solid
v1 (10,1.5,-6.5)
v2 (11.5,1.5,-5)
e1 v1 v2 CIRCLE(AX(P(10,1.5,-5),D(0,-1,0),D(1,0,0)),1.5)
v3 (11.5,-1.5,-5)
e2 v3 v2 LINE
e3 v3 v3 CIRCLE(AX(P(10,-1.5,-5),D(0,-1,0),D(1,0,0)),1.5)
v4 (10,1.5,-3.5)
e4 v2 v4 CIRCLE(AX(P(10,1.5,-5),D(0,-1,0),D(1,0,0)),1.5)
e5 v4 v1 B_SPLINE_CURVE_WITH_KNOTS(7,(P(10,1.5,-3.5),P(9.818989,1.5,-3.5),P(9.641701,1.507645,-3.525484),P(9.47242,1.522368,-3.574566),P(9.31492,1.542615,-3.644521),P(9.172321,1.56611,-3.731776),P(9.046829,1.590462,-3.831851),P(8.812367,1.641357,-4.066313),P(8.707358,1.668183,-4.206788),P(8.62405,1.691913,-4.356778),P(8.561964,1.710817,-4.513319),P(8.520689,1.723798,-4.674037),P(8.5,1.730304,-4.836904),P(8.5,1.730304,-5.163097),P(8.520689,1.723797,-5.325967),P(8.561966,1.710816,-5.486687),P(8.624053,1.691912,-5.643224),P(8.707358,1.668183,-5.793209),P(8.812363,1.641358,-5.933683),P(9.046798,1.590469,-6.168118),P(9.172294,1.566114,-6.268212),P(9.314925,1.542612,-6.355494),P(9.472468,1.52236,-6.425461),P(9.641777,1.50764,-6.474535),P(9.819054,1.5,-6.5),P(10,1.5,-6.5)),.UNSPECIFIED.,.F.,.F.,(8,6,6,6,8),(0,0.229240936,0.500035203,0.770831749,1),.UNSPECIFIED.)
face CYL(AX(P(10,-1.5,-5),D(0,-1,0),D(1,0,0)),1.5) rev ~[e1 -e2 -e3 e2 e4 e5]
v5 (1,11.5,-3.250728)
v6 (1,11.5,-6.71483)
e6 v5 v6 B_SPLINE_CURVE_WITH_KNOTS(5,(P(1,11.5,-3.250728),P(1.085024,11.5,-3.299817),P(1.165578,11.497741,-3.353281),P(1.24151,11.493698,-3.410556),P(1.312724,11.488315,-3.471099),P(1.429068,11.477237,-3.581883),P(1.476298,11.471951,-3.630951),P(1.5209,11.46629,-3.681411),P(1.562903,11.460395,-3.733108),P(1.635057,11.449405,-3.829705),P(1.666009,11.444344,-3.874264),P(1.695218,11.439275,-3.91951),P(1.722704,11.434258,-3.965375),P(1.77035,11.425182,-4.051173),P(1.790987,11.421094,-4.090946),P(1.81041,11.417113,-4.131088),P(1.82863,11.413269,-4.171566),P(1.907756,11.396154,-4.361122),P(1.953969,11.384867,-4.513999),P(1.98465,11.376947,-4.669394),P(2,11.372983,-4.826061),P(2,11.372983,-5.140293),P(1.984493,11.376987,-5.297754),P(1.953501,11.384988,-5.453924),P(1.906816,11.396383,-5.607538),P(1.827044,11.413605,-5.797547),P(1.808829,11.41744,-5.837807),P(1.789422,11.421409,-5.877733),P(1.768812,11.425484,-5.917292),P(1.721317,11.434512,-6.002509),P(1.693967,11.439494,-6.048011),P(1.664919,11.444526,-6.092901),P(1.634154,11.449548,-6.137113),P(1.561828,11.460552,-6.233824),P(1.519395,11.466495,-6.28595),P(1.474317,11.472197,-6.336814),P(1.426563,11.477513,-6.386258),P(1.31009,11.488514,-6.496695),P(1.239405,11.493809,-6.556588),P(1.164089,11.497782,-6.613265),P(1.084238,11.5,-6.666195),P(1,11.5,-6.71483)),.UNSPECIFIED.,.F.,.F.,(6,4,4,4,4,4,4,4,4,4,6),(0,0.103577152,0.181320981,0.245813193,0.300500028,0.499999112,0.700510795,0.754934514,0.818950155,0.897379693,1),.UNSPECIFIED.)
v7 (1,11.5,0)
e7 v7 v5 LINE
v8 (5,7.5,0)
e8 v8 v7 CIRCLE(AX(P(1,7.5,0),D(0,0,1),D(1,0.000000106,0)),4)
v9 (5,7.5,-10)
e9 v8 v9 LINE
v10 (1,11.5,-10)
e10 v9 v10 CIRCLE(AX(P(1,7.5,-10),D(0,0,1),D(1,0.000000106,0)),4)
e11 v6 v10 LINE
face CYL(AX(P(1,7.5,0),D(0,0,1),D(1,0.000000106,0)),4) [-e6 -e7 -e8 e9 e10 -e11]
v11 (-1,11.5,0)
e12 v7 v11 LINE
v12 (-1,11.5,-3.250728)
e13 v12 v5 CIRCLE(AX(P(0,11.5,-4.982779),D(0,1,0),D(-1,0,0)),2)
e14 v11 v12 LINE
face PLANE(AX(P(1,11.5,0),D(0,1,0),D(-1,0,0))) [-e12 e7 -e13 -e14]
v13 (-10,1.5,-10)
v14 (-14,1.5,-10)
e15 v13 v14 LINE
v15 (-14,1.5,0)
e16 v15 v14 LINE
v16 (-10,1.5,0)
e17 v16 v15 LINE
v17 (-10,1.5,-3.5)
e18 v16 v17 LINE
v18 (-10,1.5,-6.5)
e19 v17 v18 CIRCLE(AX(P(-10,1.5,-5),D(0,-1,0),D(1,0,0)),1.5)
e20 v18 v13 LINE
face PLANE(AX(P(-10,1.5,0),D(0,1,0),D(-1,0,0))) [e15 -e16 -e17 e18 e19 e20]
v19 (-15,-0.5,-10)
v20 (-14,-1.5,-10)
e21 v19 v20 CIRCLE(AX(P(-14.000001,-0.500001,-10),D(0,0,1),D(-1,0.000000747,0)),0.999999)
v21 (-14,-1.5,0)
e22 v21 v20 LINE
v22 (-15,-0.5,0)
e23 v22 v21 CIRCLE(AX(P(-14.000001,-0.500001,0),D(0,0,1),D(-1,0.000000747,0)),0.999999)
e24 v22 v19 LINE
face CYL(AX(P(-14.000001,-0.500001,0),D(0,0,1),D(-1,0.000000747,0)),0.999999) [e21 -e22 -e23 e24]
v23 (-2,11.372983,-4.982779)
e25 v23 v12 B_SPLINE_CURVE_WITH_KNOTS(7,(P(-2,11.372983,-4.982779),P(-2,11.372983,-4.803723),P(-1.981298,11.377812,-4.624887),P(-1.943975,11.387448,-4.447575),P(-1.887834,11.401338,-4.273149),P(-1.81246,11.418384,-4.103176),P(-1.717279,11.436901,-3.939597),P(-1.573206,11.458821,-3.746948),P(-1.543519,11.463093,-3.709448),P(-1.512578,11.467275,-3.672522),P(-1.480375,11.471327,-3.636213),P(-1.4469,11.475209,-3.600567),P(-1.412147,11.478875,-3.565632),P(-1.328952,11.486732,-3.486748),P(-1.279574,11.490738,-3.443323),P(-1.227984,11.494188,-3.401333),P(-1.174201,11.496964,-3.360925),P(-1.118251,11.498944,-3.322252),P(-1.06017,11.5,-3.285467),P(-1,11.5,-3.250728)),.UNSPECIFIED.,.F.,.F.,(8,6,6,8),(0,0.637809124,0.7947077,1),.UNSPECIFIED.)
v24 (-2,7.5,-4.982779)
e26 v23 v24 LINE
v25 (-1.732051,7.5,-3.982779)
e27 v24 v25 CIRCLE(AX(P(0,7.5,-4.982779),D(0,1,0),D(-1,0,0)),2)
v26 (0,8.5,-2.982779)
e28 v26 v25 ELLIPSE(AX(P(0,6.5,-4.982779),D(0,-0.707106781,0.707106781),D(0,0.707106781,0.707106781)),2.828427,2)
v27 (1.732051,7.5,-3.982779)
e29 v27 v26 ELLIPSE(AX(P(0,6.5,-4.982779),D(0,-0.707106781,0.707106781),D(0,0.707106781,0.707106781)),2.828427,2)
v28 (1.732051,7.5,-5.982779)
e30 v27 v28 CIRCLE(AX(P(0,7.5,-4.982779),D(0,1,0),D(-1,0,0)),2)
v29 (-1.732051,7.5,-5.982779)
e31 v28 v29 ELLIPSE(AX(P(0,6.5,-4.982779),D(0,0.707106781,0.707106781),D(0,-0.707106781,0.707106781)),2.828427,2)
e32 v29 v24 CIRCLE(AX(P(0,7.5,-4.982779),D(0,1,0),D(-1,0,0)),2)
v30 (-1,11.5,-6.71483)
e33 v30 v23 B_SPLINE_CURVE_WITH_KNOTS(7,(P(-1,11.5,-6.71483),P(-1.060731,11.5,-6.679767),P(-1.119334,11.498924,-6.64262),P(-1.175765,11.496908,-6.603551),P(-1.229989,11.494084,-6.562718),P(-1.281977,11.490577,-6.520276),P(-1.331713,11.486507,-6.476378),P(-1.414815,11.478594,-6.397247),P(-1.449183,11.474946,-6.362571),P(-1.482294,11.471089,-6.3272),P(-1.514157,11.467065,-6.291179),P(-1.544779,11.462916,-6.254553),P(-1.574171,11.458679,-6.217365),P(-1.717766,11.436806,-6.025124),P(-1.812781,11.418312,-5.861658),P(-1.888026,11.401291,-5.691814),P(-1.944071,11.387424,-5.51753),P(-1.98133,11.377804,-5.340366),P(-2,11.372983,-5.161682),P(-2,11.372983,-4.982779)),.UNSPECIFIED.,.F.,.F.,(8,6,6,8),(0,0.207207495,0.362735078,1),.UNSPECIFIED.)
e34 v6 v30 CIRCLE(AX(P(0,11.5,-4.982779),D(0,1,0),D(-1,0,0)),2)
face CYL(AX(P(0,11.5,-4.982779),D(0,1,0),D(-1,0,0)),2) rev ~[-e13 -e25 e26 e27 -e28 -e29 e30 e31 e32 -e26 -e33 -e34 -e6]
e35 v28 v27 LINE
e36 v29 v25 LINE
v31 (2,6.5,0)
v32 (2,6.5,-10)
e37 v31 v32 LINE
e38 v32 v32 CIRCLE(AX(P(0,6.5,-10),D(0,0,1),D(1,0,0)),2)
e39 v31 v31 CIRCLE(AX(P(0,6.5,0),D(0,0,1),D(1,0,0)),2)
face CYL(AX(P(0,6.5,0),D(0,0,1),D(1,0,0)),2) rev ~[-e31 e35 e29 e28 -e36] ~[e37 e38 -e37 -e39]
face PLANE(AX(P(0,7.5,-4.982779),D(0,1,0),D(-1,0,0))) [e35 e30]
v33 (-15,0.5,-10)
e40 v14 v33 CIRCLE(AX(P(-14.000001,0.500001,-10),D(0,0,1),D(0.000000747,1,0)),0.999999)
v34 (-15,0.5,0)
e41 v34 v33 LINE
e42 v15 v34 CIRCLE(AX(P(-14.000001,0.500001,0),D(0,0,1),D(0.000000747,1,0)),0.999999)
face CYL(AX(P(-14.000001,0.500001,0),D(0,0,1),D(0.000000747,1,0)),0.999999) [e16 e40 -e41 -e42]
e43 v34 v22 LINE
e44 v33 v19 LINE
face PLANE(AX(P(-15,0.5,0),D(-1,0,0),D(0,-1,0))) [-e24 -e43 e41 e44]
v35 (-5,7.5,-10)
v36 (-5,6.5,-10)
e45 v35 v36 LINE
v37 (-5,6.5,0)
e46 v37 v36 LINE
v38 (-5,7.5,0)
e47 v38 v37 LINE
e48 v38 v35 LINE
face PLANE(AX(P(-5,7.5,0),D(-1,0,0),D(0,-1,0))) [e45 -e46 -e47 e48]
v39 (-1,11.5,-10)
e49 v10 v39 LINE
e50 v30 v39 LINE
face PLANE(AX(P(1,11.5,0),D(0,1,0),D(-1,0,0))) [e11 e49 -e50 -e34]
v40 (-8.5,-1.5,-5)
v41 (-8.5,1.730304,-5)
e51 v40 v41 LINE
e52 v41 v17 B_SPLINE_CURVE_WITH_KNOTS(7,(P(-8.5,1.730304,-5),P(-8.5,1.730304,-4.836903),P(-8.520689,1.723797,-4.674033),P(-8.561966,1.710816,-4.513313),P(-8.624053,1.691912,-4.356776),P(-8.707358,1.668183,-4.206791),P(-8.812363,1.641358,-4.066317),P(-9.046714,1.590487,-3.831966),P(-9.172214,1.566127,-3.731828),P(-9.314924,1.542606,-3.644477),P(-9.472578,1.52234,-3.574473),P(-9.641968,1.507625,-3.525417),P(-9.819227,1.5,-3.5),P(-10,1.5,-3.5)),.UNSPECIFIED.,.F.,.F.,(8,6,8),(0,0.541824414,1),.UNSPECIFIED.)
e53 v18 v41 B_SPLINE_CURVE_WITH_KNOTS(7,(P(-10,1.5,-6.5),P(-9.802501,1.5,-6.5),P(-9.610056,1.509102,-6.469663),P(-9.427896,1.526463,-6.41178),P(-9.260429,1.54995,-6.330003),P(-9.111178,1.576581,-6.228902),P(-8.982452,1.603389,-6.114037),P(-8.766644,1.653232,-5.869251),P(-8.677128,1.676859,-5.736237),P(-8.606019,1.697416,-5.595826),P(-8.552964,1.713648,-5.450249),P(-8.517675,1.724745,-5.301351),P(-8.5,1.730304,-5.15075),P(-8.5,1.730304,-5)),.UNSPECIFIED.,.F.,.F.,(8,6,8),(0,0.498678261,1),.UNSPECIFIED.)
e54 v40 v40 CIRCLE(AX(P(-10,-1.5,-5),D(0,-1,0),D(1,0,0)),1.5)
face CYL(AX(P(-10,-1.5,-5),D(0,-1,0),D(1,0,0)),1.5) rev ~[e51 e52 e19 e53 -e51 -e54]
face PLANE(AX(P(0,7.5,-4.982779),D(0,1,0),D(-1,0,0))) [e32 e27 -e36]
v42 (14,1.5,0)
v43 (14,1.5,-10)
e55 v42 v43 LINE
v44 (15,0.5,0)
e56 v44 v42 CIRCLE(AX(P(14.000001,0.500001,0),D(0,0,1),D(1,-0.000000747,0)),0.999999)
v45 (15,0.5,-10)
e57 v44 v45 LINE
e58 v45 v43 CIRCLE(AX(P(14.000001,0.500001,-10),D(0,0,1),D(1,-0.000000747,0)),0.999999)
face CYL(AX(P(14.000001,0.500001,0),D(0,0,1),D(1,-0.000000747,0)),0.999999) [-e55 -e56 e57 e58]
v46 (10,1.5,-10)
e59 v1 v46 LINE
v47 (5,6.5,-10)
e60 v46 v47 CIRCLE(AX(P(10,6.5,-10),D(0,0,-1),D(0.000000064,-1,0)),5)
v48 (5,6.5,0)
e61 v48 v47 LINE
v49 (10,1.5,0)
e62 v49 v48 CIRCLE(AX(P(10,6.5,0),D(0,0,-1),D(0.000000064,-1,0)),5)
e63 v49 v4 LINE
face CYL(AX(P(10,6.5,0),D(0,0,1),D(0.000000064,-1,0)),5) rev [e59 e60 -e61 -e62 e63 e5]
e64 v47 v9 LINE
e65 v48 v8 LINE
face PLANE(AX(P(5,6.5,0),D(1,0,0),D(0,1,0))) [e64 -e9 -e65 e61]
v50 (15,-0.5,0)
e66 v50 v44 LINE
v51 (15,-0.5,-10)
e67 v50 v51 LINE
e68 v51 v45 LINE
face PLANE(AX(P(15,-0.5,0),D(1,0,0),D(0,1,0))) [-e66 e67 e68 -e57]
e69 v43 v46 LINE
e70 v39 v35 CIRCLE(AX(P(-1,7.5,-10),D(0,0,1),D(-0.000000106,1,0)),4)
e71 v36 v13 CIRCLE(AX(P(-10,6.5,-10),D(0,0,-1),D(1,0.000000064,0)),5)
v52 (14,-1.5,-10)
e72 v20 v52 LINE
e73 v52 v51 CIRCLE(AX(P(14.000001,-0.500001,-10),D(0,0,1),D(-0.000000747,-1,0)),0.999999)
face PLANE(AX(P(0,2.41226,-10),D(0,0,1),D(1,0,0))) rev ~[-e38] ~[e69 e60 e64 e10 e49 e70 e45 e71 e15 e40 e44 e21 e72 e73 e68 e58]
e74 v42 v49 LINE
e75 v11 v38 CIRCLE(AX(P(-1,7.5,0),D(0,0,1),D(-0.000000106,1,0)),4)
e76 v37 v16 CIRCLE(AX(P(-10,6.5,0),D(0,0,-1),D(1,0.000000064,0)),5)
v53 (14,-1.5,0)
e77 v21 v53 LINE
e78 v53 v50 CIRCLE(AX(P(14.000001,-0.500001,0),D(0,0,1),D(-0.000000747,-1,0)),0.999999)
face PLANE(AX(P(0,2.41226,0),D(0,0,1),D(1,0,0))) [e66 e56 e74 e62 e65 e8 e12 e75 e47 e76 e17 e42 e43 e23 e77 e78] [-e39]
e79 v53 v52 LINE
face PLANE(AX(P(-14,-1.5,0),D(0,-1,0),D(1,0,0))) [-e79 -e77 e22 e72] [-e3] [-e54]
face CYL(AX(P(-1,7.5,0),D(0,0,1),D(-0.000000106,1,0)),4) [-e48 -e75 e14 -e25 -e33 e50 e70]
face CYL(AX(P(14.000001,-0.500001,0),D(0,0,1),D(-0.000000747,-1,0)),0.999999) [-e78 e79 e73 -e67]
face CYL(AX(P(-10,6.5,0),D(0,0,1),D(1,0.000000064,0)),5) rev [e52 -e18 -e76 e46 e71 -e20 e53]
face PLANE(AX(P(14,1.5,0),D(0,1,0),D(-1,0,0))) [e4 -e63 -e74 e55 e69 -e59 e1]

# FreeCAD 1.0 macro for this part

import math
import FreeCAD as App
import Part
import Sketcher
from FreeCAD import Vector

doc = App.newDocument("Part")
body = doc.addObject("PartDesign::Body", "Body")

# Sketch on XY plane
sketch1 = body.newObject("Sketcher::SketchObject", "Sketch")
sketch1.AttachmentSupport = (doc.getObject("XY_Plane"), [""])
sketch1.MapMode = "FlatFace"
sketch1.addGeometry([
    Part.LineSegment(Vector(-14, -1.5, 0), Vector(14, -1.5, 0)),  # 0
    Part.ArcOfCircle(Part.Circle(Vector(14.000001, -0.500001, 0), Vector(0, 0, 1), 0.999999), math.radians(-90.000043), math.radians(0.000043)),  # 1
    Part.LineSegment(Vector(15, -0.5, 0), Vector(15, 0.5, 0)),  # 2
    Part.ArcOfCircle(Part.Circle(Vector(14.000001, 0.500001, 0), Vector(0, 0, 1), 0.999999), math.radians(-0.000043), math.radians(90.000043)),  # 3
    Part.LineSegment(Vector(14, 1.5, 0), Vector(10, 1.5, 0)),  # 4
    Part.ArcOfCircle(Part.Circle(Vector(10, 6.5, 0), Vector(0, 0, 1), 5), math.radians(179.999996), math.radians(270.000004)),  # 5
    Part.LineSegment(Vector(5, 6.5, 0), Vector(5, 7.5, 0)),  # 6
    Part.ArcOfCircle(Part.Circle(Vector(1, 7.5, 0), Vector(0, 0, 1), 4), math.radians(0.000006), math.radians(89.999994)),  # 7
    Part.LineSegment(Vector(1, 11.5, 0), Vector(-1, 11.5, 0)),  # 8
    Part.ArcOfCircle(Part.Circle(Vector(-1, 7.5, 0), Vector(0, 0, 1), 4), math.radians(90.000006), math.radians(179.999994)),  # 9
    Part.LineSegment(Vector(-5, 7.5, 0), Vector(-5, 6.5, 0)),  # 10
    Part.ArcOfCircle(Part.Circle(Vector(-10, 6.5, 0), Vector(0, 0, 1), 5), math.radians(-90.000004), math.radians(0.000004)),  # 11
    Part.LineSegment(Vector(-10, 1.5, 0), Vector(-14, 1.5, 0)),  # 12
    Part.ArcOfCircle(Part.Circle(Vector(-14.000001, 0.500001, 0), Vector(0, 0, 1), 0.999999), math.radians(89.999957), math.radians(180.000043)),  # 13
    Part.LineSegment(Vector(-15, 0.5, 0), Vector(-15, -0.5, 0)),  # 14
    Part.ArcOfCircle(Part.Circle(Vector(-14.000001, -0.500001, 0), Vector(0, 0, 1), 0.999999), math.radians(179.999957), math.radians(270.000043)),  # 15
    Part.Circle(Vector(0, 6.5, 0), Vector(0, 0, 1), 2),  # 16
], False)
sketch1.addConstraint([
    Sketcher.Constraint("Tangent", 0, 2, 1, 1),
    Sketcher.Constraint("Tangent", 1, 2, 2, 1),
    Sketcher.Constraint("Tangent", 2, 2, 3, 1),
    Sketcher.Constraint("Tangent", 3, 2, 4, 1),
    Sketcher.Constraint("Tangent", 4, 2, 5, 2),
    Sketcher.Constraint("Tangent", 5, 1, 6, 1),
    Sketcher.Constraint("Tangent", 6, 2, 7, 1),
    Sketcher.Constraint("Tangent", 7, 2, 8, 1),
    Sketcher.Constraint("Tangent", 8, 2, 9, 1),
    Sketcher.Constraint("Tangent", 9, 2, 10, 1),
    Sketcher.Constraint("Tangent", 10, 2, 11, 2),
    Sketcher.Constraint("Tangent", 11, 1, 12, 1),
    Sketcher.Constraint("Tangent", 12, 2, 13, 1),
    Sketcher.Constraint("Tangent", 13, 2, 14, 1),
    Sketcher.Constraint("Tangent", 14, 2, 15, 1),
    Sketcher.Constraint("Tangent", 15, 2, 0, 1),
    Sketcher.Constraint("Horizontal", 0),
    Sketcher.Constraint("Vertical", 2),
    Sketcher.Constraint("Horizontal", 4),
    Sketcher.Constraint("Vertical", 6),
    Sketcher.Constraint("Horizontal", 8),
    Sketcher.Constraint("Vertical", 10),
    Sketcher.Constraint("Horizontal", 12),
    Sketcher.Constraint("Vertical", 14),
    Sketcher.Constraint("Equal", 1, 3),
    Sketcher.Constraint("Equal", 7, 9),
    Sketcher.Constraint("Equal", 5, 11),
    Sketcher.Constraint("Equal", 3, 13),
    Sketcher.Constraint("Equal", 13, 15),
    Sketcher.Constraint("Symmetric", 1, 3, 13, 3, -1, 1),
    Sketcher.Constraint("Symmetric", 5, 3, 11, 3, -2),
    Sketcher.Constraint("PointOnObject", 16, 3, -2),
    Sketcher.Constraint("Horizontal", 11, 3, 16, 3),
    Sketcher.Constraint("Equal", 2, 6),
    Sketcher.Constraint("Diameter", 16, 4.0),
    Sketcher.Constraint("Radius", 1, 0.999999),
    Sketcher.Constraint("Radius", 5, 5.0),
    Sketcher.Constraint("Radius", 7, 4.0),
    Sketcher.Constraint("DistanceX", 0, 1, 0, 2, 28.0),
    Sketcher.Constraint("DistanceX", 4, 2, 4, 1, 4.0),
    Sketcher.Constraint("DistanceY", 2, 1, 2, 2, 1.0),
])
pad1 = body.newObject("PartDesign::Pad", "Pad")
pad1.Profile = sketch1
pad1.Length = 10
pad1.Reversed = True

# Sketch on XZ plane
sketch2 = body.newObject("Sketcher::SketchObject", "Sketch001")
sketch2.AttachmentSupport = (doc.getObject("XZ_Plane"), [""])
sketch2.MapMode = "FlatFace"
sketch2.AttachmentOffset = App.Placement(Vector(0, 0, -11.5), App.Rotation())
sketch2.addGeometry(Part.Circle(Vector(0, -4.982779, 0), Vector(0, 0, 1), 2), False)
sketch2.addConstraint([
    Sketcher.Constraint("PointOnObject", 0, 3, -2),
    Sketcher.Constraint("Diameter", 0, 4.0),
    Sketcher.Constraint("DistanceY", 0, 3, -1, 1, 4.982779),
])
pocket1 = body.newObject("PartDesign::Pocket", "Pocket")
pocket1.Profile = sketch2
pocket1.Length = 4
pocket1.Reversed = True

# Sketch on XZ plane
sketch3 = body.newObject("Sketcher::SketchObject", "Sketch002")
sketch3.AttachmentSupport = (doc.getObject("XZ_Plane"), [""])
sketch3.MapMode = "FlatFace"
sketch3.AttachmentOffset = App.Placement(Vector(0, 0, 1.5), App.Rotation())
sketch3.addGeometry([
    Part.Circle(Vector(10, -5, 0), Vector(0, 0, 1), 1.5),
    Part.Circle(Vector(-10, -5, 0), Vector(0, 0, 1), 1.5),
], False)
sketch3.addConstraint([
    Sketcher.Constraint("Equal", 0, 1),
    Sketcher.Constraint("Symmetric", 0, 3, 1, 3, -2),
    Sketcher.Constraint("Diameter", 0, 3.0),
    Sketcher.Constraint("DistanceX", -1, 1, 0, 3, 10.0),
    Sketcher.Constraint("DistanceY", 0, 3, -1, 1, 5.0),
])
pocket2 = body.newObject("PartDesign::Pocket", "Pocket001")
pocket2.Profile = sketch3
pocket2.Length = 4

doc.recompute()
